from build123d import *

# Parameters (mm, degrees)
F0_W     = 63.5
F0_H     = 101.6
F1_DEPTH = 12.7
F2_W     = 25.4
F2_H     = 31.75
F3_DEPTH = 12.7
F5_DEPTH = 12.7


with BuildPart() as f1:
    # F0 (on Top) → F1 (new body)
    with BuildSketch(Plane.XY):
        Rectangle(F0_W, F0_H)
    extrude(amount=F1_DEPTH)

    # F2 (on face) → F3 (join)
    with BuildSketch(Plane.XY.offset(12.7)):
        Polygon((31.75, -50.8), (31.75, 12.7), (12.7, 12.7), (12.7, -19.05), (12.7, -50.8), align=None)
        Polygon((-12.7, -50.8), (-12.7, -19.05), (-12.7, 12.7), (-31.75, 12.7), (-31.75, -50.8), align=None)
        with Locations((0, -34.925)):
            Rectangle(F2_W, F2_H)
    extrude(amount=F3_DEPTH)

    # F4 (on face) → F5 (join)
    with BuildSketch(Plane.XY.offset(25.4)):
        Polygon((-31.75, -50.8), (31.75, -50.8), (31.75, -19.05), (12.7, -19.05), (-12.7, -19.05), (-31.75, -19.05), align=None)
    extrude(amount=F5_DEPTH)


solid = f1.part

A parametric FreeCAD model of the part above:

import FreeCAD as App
import Part
import Sketcher
from FreeCAD import Vector
Q = App.Units.Quantity

doc = App.newDocument("Part")
body = doc.addObject("PartDesign::Body", "Body")

sketch1 = body.newObject("Sketcher::SketchObject", "Sketch")
sketch1.AttachmentSupport = (doc.getObject("XY_Plane"), [""])
sketch1.MapMode = "FlatFace"
sketch1.addGeometry(Part.LineSegment(Vector(-32, 51, 0), Vector(-32, -51, 0)), False)
sketch1.addGeometry(Part.LineSegment(Vector(-32, -51, 0), Vector(32, -51, 0)), False)
sketch1.addGeometry(Part.LineSegment(Vector(32, -51, 0), Vector(32, 51, 0)), False)
sketch1.addGeometry(Part.LineSegment(Vector(32, 51, 0), Vector(-32, 51, 0)), False)
sketch1.addConstraint(Sketcher.Constraint("Coincident", 0, 2, 1, 1))
sketch1.addConstraint(Sketcher.Constraint("Coincident", 1, 2, 2, 1))
sketch1.addConstraint(Sketcher.Constraint("Coincident", 2, 2, 3, 1))
sketch1.addConstraint(Sketcher.Constraint("Coincident", 3, 2, 0, 1))
sketch1.addConstraint(Sketcher.Constraint("Vertical", 0))
sketch1.addConstraint(Sketcher.Constraint("Horizontal", 1))
sketch1.addConstraint(Sketcher.Constraint("Vertical", 2))
sketch1.addConstraint(Sketcher.Constraint("Horizontal", 3))
sketch1.addConstraint(Sketcher.Constraint("Symmetric", 0, 2, 2, 2, -1, 1))
sketch1.addConstraint(Sketcher.Constraint("DistanceY", 0, 2, 0, 1, Q("4 in")))
sketch1.addConstraint(Sketcher.Constraint("DistanceX", 1, 1, 1, 2, Q("2.5 in")))
pad1 = body.newObject("PartDesign::Pad", "Pad")
pad1.Profile = sketch1
pad1.Length = Q("0.5 in")

sketch2 = body.newObject("Sketcher::SketchObject", "Sketch001")
sketch2.AttachmentSupport = (doc.getObject("XY_Plane"), [""])
sketch2.MapMode = "FlatFace"
sketch2.AttachmentOffset = App.Placement(Vector(0, 0, 0.5 * 25.4), App.Rotation())
sketch2.addGeometry(Part.LineSegment(Vector(32, -51, 0), Vector(32, 13, 0)), False)
sketch2.addGeometry(Part.LineSegment(Vector(32, 13, 0), Vector(13, 13, 0)), False)
sketch2.addGeometry(Part.LineSegment(Vector(13, 13, 0), Vector(13, -19, 0)), False)
sketch2.addGeometry(Part.LineSegment(Vector(13, -19, 0), Vector(-13, -19, 0)), False)
sketch2.addGeometry(Part.LineSegment(Vector(-13, -19, 0), Vector(-13, 13, 0)), False)
sketch2.addGeometry(Part.LineSegment(Vector(-13, 13, 0), Vector(-32, 13, 0)), False)
sketch2.addGeometry(Part.LineSegment(Vector(-32, 13, 0), Vector(-32, -51, 0)), False)
sketch2.addGeometry(Part.LineSegment(Vector(-32, -51, 0), Vector(32, -51, 0)), False)
sketch2.addConstraint(Sketcher.Constraint("Coincident", 0, 2, 1, 1))
sketch2.addConstraint(Sketcher.Constraint("Coincident", 1, 2, 2, 1))
sketch2.addConstraint(Sketcher.Constraint("Coincident", 2, 2, 3, 1))
sketch2.addConstraint(Sketcher.Constraint("Coincident", 3, 2, 4, 1))
sketch2.addConstraint(Sketcher.Constraint("Coincident", 4, 2, 5, 1))
sketch2.addConstraint(Sketcher.Constraint("Coincident", 5, 2, 6, 1))
sketch2.addConstraint(Sketcher.Constraint("Coincident", 6, 2, 7, 1))
sketch2.addConstraint(Sketcher.Constraint("Coincident", 7, 2, 0, 1))
sketch2.addConstraint(Sketcher.Constraint("Vertical", 0))
sketch2.addConstraint(Sketcher.Constraint("Horizontal", 1))
sketch2.addConstraint(Sketcher.Constraint("Vertical", 2))
sketch2.addConstraint(Sketcher.Constraint("Horizontal", 3))
sketch2.addConstraint(Sketcher.Constraint("Vertical", 4))
sketch2.addConstraint(Sketcher.Constraint("Horizontal", 5))
sketch2.addConstraint(Sketcher.Constraint("Vertical", 6))
sketch2.addConstraint(Sketcher.Constraint("Horizontal", 7))
sketch2.addConstraint(Sketcher.Constraint("Symmetric", 1, 2, 4, 2, -2))
sketch2.addConstraint(Sketcher.Constraint("Equal", 1, 5))
sketch2.addConstraint(Sketcher.Constraint("Equal", 7, 0))
sketch2.addConstraint(Sketcher.Constraint("DistanceX", 3, 2, 3, 1, Q("1 in")))
sketch2.addConstraint(Sketcher.Constraint("DistanceX", 7, 1, 7, 2, Q("2.5 in")))
sketch2.addConstraint(Sketcher.Constraint("DistanceY", 6, 2, -1, 1, Q("2 in")))
sketch2.addConstraint(Sketcher.Constraint("DistanceY", 2, 2, 2, 1, Q("1.25 in")))
pad2 = body.newObject("PartDesign::Pad", "Pad001")
pad2.Profile = sketch2
pad2.Length = Q("0.5 in")

sketch3 = body.newObject("Sketcher::SketchObject", "Sketch002")
sketch3.AttachmentSupport = (doc.getObject("XY_Plane"), [""])
sketch3.MapMode = "FlatFace"
sketch3.AttachmentOffset = App.Placement(Vector(0, 0, 1 * 25.4), App.Rotation())
sketch3.addGeometry(Part.LineSegment(Vector(-32, -51, 0), Vector(32, -51, 0)), False)
sketch3.addGeometry(Part.LineSegment(Vector(32, -51, 0), Vector(32, -19, 0)), False)
sketch3.addGeometry(Part.LineSegment(Vector(32, -19, 0), Vector(-32, -19, 0)), False)
sketch3.addGeometry(Part.LineSegment(Vector(-32, -19, 0), Vector(-32, -51, 0)), False)
sketch3.addConstraint(Sketcher.Constraint("Coincident", 0, 2, 1, 1))
sketch3.addConstraint(Sketcher.Constraint("Coincident", 1, 2, 2, 1))
sketch3.addConstraint(Sketcher.Constraint("Coincident", 2, 2, 3, 1))
sketch3.addConstraint(Sketcher.Constraint("Coincident", 3, 2, 0, 1))
sketch3.addConstraint(Sketcher.Constraint("Horizontal", 0))
sketch3.addConstraint(Sketcher.Constraint("Vertical", 1))
sketch3.addConstraint(Sketcher.Constraint("Horizontal", 2))
sketch3.addConstraint(Sketcher.Constraint("Vertical", 3))
sketch3.addConstraint(Sketcher.Constraint("DistanceX", 0, 1, 0, 2, Q("2.5 in")))
sketch3.addConstraint(Sketcher.Constraint("DistanceY", 0, 2, -1, 1, Q("2 in")))
sketch3.addConstraint(Sketcher.Constraint("DistanceY", 1, 1, 1, 2, Q("1.25 in")))
sketch3.addConstraint(Sketcher.Constraint("DistanceX", -1, 1, 0, 2, Q("1.25 in")))
pad3 = body.newObject("PartDesign::Pad", "Pad002")
pad3.Profile = sketch3
pad3.Length = Q("0.5 in")

doc.recompute()
